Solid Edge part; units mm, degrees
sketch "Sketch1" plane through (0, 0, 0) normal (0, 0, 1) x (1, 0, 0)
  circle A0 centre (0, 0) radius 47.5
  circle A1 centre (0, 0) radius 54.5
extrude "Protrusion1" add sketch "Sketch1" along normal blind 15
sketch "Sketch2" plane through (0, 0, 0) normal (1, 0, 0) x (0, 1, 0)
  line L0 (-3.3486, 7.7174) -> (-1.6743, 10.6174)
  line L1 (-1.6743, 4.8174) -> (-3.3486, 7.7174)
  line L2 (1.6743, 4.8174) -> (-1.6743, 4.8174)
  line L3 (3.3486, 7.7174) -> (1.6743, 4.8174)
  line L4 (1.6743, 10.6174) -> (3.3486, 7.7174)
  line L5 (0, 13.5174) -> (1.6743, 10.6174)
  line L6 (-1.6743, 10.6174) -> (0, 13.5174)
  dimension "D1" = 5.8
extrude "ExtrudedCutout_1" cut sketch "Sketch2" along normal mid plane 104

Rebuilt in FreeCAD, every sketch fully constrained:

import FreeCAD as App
import Part
import Sketcher
Q = App.Units.Quantity

doc = App.newDocument("Part")
params = doc.addObject("Spreadsheet::Sheet", "Params")
for row, (alias, value) in enumerate([
    ("sketch1_diameter", "109 mm"),
    ("sketch1_diameter2", "95 mm"),
    ("pad1_length", "15 mm"),
    ("pocket1_length", "104 mm"),
], start=1):
    params.set(f"A{row}", alias)
    params.set(f"B{row}", "=" + value)
    params.setAlias(f"B{row}", alias)

body = doc.addObject("PartDesign::Body", "Body")

# Sketch on XY plane
sketch1 = body.newObject("Sketcher::SketchObject", "Sketch")
sketch1.AttachmentSupport = (doc.getObject("XY_Plane"), [""])
sketch1.MapMode = "FlatFace"
sketch1.addGeometry(Part.Circle(App.Vector(0, 0, 0), App.Vector(0, 0, 1), 54), False)
sketch1.addGeometry(Part.Circle(App.Vector(0, 0, 0), App.Vector(0, 0, 1), 48), False)
sketch1.addConstraint(Sketcher.Constraint("Coincident", 0, 3, -1, 1))
sketch1.addConstraint(Sketcher.Constraint("Coincident", 1, 3, -1, 1))
sketch1.addConstraint(Sketcher.Constraint("Diameter", 0, Q("109 mm")))
sketch1.addConstraint(Sketcher.Constraint("Diameter", 1, Q("95 mm")))
sketch1.setExpression("Constraints[2]", "Params.sketch1_diameter")
sketch1.setExpression("Constraints[3]", "Params.sketch1_diameter2")
pad1 = body.newObject("PartDesign::Pad", "Pad")
pad1.Profile = sketch1
pad1.setExpression("Length", "Params.pad1_length")

# Sketch on YZ plane
sketch2 = body.newObject("Sketcher::SketchObject", "Sketch001")
sketch2.AttachmentSupport = (doc.getObject("YZ_Plane"), [""])
sketch2.MapMode = "FlatFace"
sketch2.addGeometry(Part.LineSegment(App.Vector(0, 13.5, 0), App.Vector(-3.3, 7.7, 0)), False)
sketch2.addGeometry(Part.LineSegment(App.Vector(-3.3, 7.7, 0), App.Vector(-1.7, 4.8, 0)), False)
sketch2.addGeometry(Part.LineSegment(App.Vector(-1.7, 4.8, 0), App.Vector(1.7, 4.8, 0)), False)
sketch2.addGeometry(Part.LineSegment(App.Vector(1.7, 4.8, 0), App.Vector(3.3, 7.7, 0)), False)
sketch2.addGeometry(Part.LineSegment(App.Vector(3.3, 7.7, 0), App.Vector(0, 13.5, 0)), False)
sketch2.addConstraint(Sketcher.Constraint("Coincident", 0, 2, 1, 1))
sketch2.addConstraint(Sketcher.Constraint("Coincident", 1, 2, 2, 1))
sketch2.addConstraint(Sketcher.Constraint("Coincident", 2, 2, 3, 1))
sketch2.addConstraint(Sketcher.Constraint("Coincident", 3, 2, 4, 1))
sketch2.addConstraint(Sketcher.Constraint("Coincident", 4, 2, 0, 1))
sketch2.addConstraint(Sketcher.Constraint("Horizontal", 2))
sketch2.addConstraint(Sketcher.Constraint("Symmetric", 0, 2, 3, 2, -2))
sketch2.addConstraint(Sketcher.Constraint("PointOnObject", 4, 2, -2))
sketch2.addConstraint(Sketcher.Constraint("Parallel", 0, 3))
sketch2.addConstraint(Sketcher.Constraint("Parallel", 1, 4))
sketch2.addConstraint(Sketcher.Constraint("Angle", 0, Q("-119.9998 deg")))
sketch2.addConstraint(Sketcher.Constraint("DistanceY", 1, 2, 0, 2, Q("2.9 mm")))
sketch2.addConstraint(Sketcher.Constraint("DistanceY", 0, 2, 4, 2, Q("5.8 mm")))
sketch2.addConstraint(Sketcher.Constraint("DistanceY", -1, 1, 0, 2, Q("7.7174 mm")))
pocket1 = body.newObject("PartDesign::Pocket", "Pocket")
pocket1.Profile = sketch2
pocket1.setExpression("Length", "Params.pocket1_length")
pocket1.Midplane = True

doc.recompute()
